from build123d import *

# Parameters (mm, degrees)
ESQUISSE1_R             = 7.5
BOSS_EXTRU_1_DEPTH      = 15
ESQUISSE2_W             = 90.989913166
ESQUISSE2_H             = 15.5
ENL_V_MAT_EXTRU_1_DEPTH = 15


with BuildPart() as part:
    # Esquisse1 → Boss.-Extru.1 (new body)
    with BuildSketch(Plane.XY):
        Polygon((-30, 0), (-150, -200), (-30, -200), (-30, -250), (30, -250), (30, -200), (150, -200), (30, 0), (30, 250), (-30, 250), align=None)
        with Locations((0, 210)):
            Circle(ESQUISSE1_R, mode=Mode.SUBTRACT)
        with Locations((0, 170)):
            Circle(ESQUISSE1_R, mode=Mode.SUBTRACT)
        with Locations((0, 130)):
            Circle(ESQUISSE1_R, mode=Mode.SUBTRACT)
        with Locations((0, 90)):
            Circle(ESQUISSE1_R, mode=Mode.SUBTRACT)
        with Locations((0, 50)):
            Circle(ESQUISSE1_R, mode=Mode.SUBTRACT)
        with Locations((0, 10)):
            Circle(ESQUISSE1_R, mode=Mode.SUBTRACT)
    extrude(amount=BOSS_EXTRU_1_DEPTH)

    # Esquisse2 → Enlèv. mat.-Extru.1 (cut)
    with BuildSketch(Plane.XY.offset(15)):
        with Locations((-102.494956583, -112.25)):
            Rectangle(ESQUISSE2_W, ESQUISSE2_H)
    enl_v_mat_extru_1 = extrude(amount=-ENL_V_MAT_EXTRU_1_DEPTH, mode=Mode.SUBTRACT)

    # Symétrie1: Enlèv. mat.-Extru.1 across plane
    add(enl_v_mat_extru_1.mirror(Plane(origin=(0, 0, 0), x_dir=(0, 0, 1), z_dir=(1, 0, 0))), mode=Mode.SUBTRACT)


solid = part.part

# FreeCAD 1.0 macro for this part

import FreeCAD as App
import Part
import Sketcher


def add_polygon(sketch, points):
    """Adds a closed chain of lines whose ends are joined by coincident constraints."""
    first, n = sketch.GeometryCount, len(points)
    for a, b in zip(points, points[1:] + points[:1]):
        sketch.addGeometry(Part.LineSegment(App.Vector(*a, 0), App.Vector(*b, 0)), False)
    for i in range(n):
        sketch.addConstraint(Sketcher.Constraint("Coincident", first + i, 2, first + (i + 1) % n, 1))

doc = App.newDocument("Part")
body = doc.addObject("PartDesign::Body", "Body")

sketch1 = doc.addObject("Sketcher::SketchObject", "Sketch")
body.addObject(sketch1)
sketch1.AttachmentSupport = (doc.XY_Plane, [""])
sketch1.MapMode = "FlatFace"
add_polygon(sketch1, [(-30, 0), (-150, -200), (-30, -200), (-30, -250), (30, -250), (30, -200), (150, -200), (30, 0), (30, 250), (-30, 250)])
sketch1.addGeometry(Part.Circle(App.Vector(0, 10, 0), App.Vector(0, 0, 1), 8), False)
sketch1.addGeometry(Part.Circle(App.Vector(0, 50, 0), App.Vector(0, 0, 1), 8), False)
sketch1.addGeometry(Part.Circle(App.Vector(0, 90, 0), App.Vector(0, 0, 1), 8), False)
sketch1.addGeometry(Part.Circle(App.Vector(0, 130, 0), App.Vector(0, 0, 1), 8), False)
sketch1.addGeometry(Part.Circle(App.Vector(0, 170, 0), App.Vector(0, 0, 1), 8), False)
sketch1.addGeometry(Part.Circle(App.Vector(0, 210, 0), App.Vector(0, 0, 1), 8), False)
sketch1.addConstraint([
    Sketcher.Constraint("Horizontal", 1),
    Sketcher.Constraint("Vertical", 2),
    Sketcher.Constraint("Horizontal", 3),
    Sketcher.Constraint("Vertical", 4),
    Sketcher.Constraint("Horizontal", 5),
    Sketcher.Constraint("Vertical", 7),
    Sketcher.Constraint("Horizontal", 8),
    Sketcher.Constraint("Vertical", 9),
    Sketcher.Constraint("Equal", 10, 11),
    Sketcher.Constraint("Equal", 11, 12),
    Sketcher.Constraint("Equal", 12, 13),
    Sketcher.Constraint("Equal", 13, 14),
    Sketcher.Constraint("Equal", 14, 15),
    Sketcher.Constraint("Symmetric", 2, 2, 7, 2, -1, 1),
    Sketcher.Constraint("Symmetric", 6, 2, 9, 2, -1, 1),
    Sketcher.Constraint("Symmetric", 1, 2, 4, 2, -2),
    Sketcher.Constraint("PointOnObject", 10, 3, -2),
    Sketcher.Constraint("PointOnObject", 11, 3, -2),
    Sketcher.Constraint("PointOnObject", 12, 3, -2),
    Sketcher.Constraint("PointOnObject", 13, 3, -2),
    Sketcher.Constraint("PointOnObject", 14, 3, -2),
    Sketcher.Constraint("PointOnObject", 15, 3, -2),
    Sketcher.Constraint("PointOnObject", 6, 2, -1),
    Sketcher.Constraint("Equal", 1, 5),
    Sketcher.Constraint("Diameter", 10, 15.0),
    Sketcher.Constraint("DistanceX", 1, 1, 1, 2, 120.0),
    Sketcher.Constraint("DistanceX", 3, 1, 3, 2, 60.0),
    Sketcher.Constraint("DistanceY", 2, 2, 2, 1, 50.0),
    Sketcher.Constraint("DistanceY", 7, 1, 7, 2, 250.0),
    Sketcher.Constraint("DistanceY", -1, 1, 10, 3, 10.0),
    Sketcher.Constraint("DistanceY", -1, 1, 11, 3, 50.0),
    Sketcher.Constraint("DistanceY", -1, 1, 12, 3, 90.0),
    Sketcher.Constraint("DistanceY", -1, 1, 13, 3, 130.0),
    Sketcher.Constraint("DistanceY", -1, 1, 14, 3, 170.0),
    Sketcher.Constraint("DistanceY", -1, 1, 15, 3, 210.0),
])
pad1 = doc.addObject("PartDesign::Pad", "Pad")
body.addObject(pad1)
pad1.Profile = sketch1
pad1.Length = 15

sketch2 = doc.addObject("Sketcher::SketchObject", "Sketch001")
body.addObject(sketch2)
sketch2.AttachmentSupport = (doc.XY_Plane, [""])
sketch2.MapMode = "FlatFace"
sketch2.AttachmentOffset = App.Placement(App.Vector(0, 0, 15), App.Rotation())
add_polygon(sketch2, [(-148, -104), (-148, -120), (-57, -120), (-57, -104)])
sketch2.addConstraint([
    Sketcher.Constraint("Vertical", 0),
    Sketcher.Constraint("Horizontal", 1),
    Sketcher.Constraint("Vertical", 2),
    Sketcher.Constraint("Horizontal", 3),
    Sketcher.Constraint("DistanceY", 0, 2, 0, 1, 15.5),
    Sketcher.Constraint("DistanceY", 0, 2, -1, 1, 120.0),
    Sketcher.Constraint("DistanceX", 1, 2, -1, 1, 57.0),
    Sketcher.Constraint("DistanceX", 1, 1, 1, 2, 90.989913),
])
pocket1 = doc.addObject("PartDesign::Pocket", "Pocket")
body.addObject(pocket1)
pocket1.Profile = sketch2
pocket1.Length = 15
doc.recompute()

mirrored = doc.addObject("PartDesign::Mirrored", "Mirrored")
body.addObject(mirrored)
mirrored.Originals = [pocket1]
mirrored.MirrorPlane = (doc.YZ_Plane, [""])
body.Tip = mirrored

doc.recompute()
